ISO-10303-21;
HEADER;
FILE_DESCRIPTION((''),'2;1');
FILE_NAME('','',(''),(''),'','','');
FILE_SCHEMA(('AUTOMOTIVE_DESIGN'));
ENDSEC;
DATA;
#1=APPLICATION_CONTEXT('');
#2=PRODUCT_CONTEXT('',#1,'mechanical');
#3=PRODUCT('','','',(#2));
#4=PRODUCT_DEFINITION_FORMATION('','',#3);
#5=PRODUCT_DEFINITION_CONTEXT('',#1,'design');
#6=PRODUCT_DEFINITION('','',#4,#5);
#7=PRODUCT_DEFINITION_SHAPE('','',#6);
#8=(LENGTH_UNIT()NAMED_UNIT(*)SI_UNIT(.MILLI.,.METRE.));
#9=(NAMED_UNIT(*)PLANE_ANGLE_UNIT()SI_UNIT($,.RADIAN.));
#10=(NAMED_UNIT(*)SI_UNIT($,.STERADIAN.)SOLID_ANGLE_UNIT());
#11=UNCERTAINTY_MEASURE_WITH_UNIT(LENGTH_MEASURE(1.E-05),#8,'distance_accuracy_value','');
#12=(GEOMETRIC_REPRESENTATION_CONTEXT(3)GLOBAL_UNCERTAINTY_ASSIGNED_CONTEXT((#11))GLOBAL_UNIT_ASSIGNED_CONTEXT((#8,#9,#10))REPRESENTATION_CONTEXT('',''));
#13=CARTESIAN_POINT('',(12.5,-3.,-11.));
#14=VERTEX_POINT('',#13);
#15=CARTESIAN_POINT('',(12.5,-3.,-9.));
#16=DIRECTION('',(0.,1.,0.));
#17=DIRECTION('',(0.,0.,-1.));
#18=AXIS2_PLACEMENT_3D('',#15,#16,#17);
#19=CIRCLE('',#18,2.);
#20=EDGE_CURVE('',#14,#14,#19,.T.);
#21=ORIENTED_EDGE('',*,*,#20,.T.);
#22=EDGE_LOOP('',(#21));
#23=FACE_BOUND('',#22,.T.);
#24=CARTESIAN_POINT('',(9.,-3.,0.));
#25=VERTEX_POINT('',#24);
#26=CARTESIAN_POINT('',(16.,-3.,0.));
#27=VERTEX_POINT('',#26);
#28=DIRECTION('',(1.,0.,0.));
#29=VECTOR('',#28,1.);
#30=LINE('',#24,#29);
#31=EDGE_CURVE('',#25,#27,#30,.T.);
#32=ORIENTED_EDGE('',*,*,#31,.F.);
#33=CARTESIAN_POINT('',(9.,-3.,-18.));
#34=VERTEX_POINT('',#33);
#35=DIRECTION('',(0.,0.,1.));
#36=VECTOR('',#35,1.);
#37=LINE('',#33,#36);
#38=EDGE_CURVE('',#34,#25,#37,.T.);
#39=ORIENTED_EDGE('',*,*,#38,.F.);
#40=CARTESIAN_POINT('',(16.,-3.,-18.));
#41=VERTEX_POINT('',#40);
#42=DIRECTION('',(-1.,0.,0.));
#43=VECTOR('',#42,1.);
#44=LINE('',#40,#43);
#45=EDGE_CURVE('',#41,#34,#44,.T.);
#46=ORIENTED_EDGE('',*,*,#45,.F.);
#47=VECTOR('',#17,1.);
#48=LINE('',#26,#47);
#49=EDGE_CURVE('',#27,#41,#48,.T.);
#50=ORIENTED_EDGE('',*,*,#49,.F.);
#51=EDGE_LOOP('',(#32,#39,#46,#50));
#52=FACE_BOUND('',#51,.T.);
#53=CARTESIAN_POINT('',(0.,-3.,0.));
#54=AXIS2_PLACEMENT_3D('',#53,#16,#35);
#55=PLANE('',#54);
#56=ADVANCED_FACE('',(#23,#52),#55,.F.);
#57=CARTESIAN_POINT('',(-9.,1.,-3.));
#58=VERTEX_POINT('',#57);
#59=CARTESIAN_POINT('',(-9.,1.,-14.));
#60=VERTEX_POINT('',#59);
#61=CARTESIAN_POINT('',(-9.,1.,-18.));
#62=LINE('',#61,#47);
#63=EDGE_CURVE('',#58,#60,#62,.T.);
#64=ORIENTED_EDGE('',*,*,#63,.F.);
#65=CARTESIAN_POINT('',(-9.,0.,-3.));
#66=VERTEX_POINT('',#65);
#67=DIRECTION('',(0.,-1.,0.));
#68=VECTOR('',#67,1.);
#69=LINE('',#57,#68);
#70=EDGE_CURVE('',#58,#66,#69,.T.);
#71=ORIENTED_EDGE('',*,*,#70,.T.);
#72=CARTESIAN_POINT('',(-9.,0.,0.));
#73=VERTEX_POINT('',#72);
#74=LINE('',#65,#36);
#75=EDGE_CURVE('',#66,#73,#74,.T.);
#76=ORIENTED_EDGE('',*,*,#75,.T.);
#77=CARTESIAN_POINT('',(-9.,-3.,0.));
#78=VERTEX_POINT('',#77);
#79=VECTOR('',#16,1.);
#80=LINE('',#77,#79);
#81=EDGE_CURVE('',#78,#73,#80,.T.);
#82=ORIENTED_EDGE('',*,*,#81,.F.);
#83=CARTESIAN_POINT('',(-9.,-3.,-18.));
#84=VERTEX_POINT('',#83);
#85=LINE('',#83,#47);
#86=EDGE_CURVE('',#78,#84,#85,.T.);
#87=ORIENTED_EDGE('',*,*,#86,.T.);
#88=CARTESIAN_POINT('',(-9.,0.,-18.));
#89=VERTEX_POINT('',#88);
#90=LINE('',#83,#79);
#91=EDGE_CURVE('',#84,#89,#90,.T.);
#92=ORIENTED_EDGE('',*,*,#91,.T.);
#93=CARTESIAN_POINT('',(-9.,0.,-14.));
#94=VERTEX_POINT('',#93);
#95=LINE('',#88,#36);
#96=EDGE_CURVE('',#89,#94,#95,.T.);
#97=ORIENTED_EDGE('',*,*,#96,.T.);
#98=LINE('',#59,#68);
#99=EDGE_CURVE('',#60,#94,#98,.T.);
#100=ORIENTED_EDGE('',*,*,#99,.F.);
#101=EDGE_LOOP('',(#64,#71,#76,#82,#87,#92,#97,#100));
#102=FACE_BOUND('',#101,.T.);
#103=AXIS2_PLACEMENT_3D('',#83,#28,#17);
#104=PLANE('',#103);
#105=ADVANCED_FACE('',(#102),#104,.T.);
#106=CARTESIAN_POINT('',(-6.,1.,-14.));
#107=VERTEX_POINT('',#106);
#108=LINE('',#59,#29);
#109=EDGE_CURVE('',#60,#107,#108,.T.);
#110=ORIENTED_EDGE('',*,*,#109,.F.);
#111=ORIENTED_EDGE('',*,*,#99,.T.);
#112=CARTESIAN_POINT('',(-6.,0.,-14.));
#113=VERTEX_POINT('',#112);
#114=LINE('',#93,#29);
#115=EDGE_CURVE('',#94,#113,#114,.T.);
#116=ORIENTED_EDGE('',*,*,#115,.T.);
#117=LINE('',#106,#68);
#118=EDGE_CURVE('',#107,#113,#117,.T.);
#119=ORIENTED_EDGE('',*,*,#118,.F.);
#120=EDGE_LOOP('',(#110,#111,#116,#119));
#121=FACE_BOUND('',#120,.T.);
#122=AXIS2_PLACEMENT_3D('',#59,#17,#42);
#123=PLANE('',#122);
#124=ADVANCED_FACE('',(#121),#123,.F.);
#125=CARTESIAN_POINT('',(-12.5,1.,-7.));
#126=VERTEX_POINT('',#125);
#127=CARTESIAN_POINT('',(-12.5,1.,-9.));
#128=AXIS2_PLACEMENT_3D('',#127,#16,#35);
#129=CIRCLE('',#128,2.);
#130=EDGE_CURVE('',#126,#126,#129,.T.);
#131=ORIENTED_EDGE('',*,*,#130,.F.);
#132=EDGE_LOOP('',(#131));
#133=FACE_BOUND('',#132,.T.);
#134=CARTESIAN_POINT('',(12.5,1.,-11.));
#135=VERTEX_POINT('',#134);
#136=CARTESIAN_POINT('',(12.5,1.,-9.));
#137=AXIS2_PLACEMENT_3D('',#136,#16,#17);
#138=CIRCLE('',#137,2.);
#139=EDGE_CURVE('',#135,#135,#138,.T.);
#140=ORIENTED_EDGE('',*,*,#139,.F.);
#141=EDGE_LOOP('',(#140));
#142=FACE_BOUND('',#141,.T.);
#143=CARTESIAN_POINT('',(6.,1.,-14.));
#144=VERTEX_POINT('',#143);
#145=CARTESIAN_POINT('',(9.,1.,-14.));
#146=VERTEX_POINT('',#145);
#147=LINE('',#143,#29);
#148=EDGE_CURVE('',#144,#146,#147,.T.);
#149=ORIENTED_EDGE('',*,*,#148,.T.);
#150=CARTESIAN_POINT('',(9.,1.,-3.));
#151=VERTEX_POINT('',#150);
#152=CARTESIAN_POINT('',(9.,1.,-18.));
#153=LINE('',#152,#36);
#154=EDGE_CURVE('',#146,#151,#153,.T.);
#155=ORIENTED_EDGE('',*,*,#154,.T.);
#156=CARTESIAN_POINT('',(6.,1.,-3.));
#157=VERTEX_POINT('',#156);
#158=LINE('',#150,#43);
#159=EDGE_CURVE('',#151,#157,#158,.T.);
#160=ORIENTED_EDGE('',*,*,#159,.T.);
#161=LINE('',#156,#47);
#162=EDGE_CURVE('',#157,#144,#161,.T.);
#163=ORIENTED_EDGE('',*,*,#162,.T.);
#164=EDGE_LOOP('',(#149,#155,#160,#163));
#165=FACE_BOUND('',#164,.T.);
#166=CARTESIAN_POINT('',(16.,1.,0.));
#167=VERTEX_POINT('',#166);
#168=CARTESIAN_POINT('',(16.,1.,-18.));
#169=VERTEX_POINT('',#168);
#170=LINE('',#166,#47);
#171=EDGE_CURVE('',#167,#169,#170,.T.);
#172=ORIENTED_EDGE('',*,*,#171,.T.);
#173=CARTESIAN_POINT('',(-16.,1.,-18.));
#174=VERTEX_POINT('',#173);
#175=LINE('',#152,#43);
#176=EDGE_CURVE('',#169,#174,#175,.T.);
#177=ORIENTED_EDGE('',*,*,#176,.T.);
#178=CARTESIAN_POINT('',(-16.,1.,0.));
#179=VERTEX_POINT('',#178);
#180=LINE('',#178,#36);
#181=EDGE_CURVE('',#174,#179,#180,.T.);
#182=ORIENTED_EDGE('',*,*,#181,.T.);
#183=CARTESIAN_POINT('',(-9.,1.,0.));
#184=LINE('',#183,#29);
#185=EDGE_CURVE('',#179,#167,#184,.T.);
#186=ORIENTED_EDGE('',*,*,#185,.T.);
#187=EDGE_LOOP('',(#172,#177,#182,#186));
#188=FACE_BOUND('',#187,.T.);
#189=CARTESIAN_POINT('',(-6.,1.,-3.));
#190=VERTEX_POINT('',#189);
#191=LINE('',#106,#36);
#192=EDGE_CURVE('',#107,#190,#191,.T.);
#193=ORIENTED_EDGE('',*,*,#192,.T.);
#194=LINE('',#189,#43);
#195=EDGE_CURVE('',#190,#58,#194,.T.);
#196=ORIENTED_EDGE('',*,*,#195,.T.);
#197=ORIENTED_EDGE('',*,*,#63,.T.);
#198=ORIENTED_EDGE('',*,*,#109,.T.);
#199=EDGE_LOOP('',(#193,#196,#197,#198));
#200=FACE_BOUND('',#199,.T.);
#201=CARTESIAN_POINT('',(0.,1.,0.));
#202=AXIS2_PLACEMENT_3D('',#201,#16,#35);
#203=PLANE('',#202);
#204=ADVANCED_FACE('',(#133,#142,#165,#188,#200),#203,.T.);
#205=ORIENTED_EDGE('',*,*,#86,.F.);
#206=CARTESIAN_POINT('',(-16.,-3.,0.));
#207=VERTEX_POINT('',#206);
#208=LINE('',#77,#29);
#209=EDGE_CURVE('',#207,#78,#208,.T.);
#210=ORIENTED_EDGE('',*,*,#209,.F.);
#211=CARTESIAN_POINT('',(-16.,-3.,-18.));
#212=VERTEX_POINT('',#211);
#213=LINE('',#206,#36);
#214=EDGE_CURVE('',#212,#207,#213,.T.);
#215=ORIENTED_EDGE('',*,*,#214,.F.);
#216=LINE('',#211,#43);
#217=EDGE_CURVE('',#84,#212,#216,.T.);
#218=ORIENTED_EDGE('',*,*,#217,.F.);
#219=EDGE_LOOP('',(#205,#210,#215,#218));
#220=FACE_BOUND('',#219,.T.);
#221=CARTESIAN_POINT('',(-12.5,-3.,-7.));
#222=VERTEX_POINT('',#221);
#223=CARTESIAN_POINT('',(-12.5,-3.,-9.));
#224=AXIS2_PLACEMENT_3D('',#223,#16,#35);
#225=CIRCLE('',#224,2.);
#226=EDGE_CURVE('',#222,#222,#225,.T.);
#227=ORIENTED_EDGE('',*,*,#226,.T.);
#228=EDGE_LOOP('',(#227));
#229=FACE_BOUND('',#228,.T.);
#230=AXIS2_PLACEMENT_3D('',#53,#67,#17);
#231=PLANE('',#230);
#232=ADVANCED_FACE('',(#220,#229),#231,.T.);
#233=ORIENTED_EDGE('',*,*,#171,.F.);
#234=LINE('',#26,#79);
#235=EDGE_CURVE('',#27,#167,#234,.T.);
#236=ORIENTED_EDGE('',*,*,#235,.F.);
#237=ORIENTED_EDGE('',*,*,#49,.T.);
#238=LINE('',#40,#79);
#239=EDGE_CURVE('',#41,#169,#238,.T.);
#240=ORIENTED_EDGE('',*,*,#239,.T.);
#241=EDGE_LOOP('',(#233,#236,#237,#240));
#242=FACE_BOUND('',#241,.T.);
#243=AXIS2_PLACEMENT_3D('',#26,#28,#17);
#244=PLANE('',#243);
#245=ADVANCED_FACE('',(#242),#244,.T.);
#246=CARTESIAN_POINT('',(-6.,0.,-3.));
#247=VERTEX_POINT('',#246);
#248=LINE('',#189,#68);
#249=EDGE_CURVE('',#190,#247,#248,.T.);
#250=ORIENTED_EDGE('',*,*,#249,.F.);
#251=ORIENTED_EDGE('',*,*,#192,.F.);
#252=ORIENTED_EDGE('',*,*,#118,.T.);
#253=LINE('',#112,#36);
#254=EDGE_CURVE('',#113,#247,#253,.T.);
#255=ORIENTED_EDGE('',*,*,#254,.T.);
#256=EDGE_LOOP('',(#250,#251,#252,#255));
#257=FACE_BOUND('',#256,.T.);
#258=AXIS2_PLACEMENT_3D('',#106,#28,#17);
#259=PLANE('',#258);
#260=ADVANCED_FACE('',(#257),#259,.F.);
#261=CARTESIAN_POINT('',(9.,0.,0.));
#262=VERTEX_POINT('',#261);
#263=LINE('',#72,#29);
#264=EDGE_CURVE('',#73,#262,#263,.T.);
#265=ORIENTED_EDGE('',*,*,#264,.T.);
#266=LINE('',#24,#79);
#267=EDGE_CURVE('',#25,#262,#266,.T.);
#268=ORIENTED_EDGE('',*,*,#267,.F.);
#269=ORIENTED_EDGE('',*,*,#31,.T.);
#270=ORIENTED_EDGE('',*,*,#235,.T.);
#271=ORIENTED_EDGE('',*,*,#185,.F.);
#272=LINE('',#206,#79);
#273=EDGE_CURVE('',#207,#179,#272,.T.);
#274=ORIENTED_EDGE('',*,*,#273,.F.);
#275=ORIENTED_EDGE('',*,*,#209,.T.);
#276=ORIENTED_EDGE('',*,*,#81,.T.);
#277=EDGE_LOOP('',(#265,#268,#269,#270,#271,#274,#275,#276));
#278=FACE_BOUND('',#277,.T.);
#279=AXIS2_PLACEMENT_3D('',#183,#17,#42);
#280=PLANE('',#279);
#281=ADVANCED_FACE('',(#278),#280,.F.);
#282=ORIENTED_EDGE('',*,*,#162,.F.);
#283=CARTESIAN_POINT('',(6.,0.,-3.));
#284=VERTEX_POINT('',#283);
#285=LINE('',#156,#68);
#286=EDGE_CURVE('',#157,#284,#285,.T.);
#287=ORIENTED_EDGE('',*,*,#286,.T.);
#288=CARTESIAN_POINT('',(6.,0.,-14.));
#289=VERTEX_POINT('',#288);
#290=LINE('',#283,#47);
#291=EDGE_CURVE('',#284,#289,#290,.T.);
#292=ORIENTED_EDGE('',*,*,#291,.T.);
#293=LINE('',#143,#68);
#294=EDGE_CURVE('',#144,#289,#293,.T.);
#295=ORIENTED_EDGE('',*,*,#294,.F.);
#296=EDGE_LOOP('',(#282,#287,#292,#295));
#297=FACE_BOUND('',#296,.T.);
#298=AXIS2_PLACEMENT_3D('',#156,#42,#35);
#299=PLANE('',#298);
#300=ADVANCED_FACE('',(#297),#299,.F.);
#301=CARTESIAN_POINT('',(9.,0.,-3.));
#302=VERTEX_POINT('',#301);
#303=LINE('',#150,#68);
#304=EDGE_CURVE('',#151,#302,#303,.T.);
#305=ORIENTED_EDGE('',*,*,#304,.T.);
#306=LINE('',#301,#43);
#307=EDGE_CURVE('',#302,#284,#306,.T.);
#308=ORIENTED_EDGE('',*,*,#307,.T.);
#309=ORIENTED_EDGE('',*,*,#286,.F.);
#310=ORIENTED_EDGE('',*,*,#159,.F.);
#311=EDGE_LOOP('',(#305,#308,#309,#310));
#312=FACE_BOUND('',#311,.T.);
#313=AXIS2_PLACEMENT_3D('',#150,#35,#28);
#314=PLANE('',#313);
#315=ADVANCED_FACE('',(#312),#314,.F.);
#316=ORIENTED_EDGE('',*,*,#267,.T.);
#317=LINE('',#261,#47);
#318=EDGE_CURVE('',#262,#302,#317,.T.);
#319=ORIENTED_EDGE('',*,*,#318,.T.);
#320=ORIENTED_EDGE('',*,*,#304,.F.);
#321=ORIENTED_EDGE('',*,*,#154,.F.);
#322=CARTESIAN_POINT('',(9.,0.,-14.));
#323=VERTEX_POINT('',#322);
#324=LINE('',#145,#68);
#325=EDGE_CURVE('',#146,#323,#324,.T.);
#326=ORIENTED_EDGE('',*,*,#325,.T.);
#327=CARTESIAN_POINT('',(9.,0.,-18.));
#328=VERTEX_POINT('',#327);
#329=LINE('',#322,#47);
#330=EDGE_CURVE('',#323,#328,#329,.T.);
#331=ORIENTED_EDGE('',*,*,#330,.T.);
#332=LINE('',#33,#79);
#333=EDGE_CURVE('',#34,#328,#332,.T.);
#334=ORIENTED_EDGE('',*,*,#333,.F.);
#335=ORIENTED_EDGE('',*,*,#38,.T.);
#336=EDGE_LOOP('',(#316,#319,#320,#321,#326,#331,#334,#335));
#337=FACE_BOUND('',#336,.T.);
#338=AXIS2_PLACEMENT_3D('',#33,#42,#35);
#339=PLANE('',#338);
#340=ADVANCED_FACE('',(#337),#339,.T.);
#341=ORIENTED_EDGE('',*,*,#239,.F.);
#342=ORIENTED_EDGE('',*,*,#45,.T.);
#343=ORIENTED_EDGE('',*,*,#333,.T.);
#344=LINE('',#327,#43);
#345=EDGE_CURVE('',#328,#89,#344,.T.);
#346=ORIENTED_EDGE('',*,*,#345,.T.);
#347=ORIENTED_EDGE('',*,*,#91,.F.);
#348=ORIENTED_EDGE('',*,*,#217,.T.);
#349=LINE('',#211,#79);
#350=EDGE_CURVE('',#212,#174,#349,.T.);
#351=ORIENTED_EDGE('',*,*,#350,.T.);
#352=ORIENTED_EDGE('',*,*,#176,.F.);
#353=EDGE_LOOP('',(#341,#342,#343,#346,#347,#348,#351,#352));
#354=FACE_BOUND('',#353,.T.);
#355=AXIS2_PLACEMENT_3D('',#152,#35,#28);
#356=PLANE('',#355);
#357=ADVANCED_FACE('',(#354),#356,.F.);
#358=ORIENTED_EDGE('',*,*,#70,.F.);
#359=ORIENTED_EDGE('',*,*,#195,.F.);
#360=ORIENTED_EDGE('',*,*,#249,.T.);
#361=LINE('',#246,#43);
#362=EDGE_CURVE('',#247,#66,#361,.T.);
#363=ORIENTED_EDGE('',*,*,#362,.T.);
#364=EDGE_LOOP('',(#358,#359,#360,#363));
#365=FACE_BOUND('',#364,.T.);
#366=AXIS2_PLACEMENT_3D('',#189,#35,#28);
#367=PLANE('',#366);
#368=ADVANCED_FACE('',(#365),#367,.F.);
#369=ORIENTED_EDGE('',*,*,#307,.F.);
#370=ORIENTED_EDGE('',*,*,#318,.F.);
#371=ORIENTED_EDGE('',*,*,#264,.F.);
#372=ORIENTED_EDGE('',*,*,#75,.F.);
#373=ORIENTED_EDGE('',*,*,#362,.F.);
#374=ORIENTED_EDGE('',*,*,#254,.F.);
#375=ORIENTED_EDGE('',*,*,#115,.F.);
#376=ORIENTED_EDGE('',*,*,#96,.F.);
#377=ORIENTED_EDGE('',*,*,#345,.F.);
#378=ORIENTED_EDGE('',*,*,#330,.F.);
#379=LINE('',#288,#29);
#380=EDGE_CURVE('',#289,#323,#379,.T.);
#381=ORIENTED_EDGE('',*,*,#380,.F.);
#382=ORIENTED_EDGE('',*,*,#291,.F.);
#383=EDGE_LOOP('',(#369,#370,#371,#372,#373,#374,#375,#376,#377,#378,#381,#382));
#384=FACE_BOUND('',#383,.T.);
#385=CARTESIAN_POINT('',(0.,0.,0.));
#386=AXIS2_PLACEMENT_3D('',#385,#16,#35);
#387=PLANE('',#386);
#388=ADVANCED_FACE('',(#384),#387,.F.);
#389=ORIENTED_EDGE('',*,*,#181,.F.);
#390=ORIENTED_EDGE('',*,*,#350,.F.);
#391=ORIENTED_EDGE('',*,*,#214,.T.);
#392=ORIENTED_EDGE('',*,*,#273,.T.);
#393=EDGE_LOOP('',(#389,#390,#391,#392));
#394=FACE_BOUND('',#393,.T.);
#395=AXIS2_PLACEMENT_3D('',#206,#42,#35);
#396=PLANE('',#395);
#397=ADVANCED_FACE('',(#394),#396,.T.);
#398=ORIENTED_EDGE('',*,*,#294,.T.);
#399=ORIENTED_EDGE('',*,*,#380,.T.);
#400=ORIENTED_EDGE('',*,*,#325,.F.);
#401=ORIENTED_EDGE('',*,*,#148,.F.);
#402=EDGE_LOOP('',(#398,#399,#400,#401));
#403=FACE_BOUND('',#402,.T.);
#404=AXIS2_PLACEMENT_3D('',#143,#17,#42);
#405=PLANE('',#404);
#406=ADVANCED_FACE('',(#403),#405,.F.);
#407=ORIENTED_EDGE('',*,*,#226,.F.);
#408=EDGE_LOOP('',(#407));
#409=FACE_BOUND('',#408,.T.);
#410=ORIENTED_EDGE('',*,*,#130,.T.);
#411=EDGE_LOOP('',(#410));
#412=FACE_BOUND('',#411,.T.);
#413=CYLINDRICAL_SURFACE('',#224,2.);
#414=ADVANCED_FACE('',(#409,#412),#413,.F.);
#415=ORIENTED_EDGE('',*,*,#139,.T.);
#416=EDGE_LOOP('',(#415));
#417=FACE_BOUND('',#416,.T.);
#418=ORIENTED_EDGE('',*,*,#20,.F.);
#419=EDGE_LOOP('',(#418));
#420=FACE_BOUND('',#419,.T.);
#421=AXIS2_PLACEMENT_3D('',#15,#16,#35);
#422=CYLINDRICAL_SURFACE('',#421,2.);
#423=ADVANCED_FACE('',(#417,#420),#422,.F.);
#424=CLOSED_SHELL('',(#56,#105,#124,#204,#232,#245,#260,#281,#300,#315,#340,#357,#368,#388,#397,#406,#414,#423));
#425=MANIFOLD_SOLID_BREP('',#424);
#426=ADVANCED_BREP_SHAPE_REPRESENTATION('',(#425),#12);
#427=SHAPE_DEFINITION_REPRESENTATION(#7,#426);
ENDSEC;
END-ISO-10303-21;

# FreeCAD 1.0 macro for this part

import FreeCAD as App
import Part
import Sketcher
Q = App.Units.Quantity


def add_polygon(sketch, points):
    """Adds a closed chain of lines whose ends are joined by coincident constraints."""
    first, n = sketch.GeometryCount, len(points)
    for a, b in zip(points, points[1:] + points[:1]):
        sketch.addGeometry(Part.LineSegment(App.Vector(*a, 0), App.Vector(*b, 0)), False)
    for i in range(n):
        sketch.addConstraint(Sketcher.Constraint("Coincident", first + i, 2, first + (i + 1) % n, 1))

doc = App.newDocument("Part")
body = doc.addObject("PartDesign::Body", "Body")

# Sketch on XZ plane
sketch1 = body.newObject("Sketcher::SketchObject", "Sketch")
sketch1.AttachmentSupport = (doc.getObject("XZ_Plane"), [""])
sketch1.MapMode = "FlatFace"
add_polygon(sketch1, [(-9, 0), (9, 0), (9, -3), (6, -3), (6, -14), (9, -14), (9, -18), (-9, -18), (-9, -14), (-6, -14), (-6, -3), (-9, -3)])  # lines 0-11
sketch1.addConstraint([
    Sketcher.Constraint("Horizontal", 0),
    Sketcher.Constraint("Vertical", 1),
    Sketcher.Constraint("Horizontal", 2),
    Sketcher.Constraint("Vertical", 3),
    Sketcher.Constraint("Horizontal", 4),
    Sketcher.Constraint("Vertical", 5),
    Sketcher.Constraint("Horizontal", 6),
    Sketcher.Constraint("Vertical", 7),
    Sketcher.Constraint("Horizontal", 8),
    Sketcher.Constraint("Vertical", 9),
    Sketcher.Constraint("Horizontal", 10),
    Sketcher.Constraint("Vertical", 11),
    Sketcher.Constraint("Symmetric", 0, 2, 11, 2, -1, 1),
    Sketcher.Constraint("Symmetric", 4, 2, 7, 2, -2),
    Sketcher.Constraint("Symmetric", 2, 2, 9, 2, -2),
    Sketcher.Constraint("Vertical", 1, 2, 4, 2),
    Sketcher.Constraint("Equal", 10, 1),
    Sketcher.Constraint("DistanceX", 0, 1, 0, 2, Q("18 mm")),
    Sketcher.Constraint("DistanceX", 2, 2, 2, 1, Q("3 mm")),
    Sketcher.Constraint("DistanceY", 3, 2, 3, 1, Q("11 mm")),
    Sketcher.Constraint("DistanceY", 5, 2, 5, 1, Q("4 mm")),
])
pad1 = body.newObject("PartDesign::Pad", "Pad")
pad1.Profile = sketch1
pad1.Length = 1
pad1.Reversed = True

# Sketch on XZ plane
sketch2 = body.newObject("Sketcher::SketchObject", "Sketch001")
sketch2.AttachmentSupport = (doc.getObject("XZ_Plane"), [""])
sketch2.MapMode = "FlatFace"
sketch2.AttachmentOffset = App.Placement(App.Vector(0, 0, -1), App.Rotation())
add_polygon(sketch2, [(-16, -18), (-16, 0), (-9, 0), (-9, -18)])  # lines 0-3
sketch2.addGeometry(Part.Circle(App.Vector(-12.5, -9, 0), App.Vector(0, 0, 1), 2), False)  # 4
add_polygon(sketch2, [(9, -18), (9, 0), (16, 0), (16, -18)])  # lines 5-8
sketch2.addGeometry(Part.Circle(App.Vector(12.5, -9, 0), App.Vector(0, 0, 1), 2), False)  # 9
sketch2.addConstraint([
    Sketcher.Constraint("Vertical", 0),
    Sketcher.Constraint("Horizontal", 1),
    Sketcher.Constraint("Vertical", 2),
    Sketcher.Constraint("Horizontal", 3),
    Sketcher.Constraint("Vertical", 5),
    Sketcher.Constraint("Horizontal", 6),
    Sketcher.Constraint("Vertical", 7),
    Sketcher.Constraint("Horizontal", 8),
    Sketcher.Constraint("Equal", 4, 9),
    Sketcher.Constraint("Symmetric", 1, 2, 5, 2, -1, 1),
    Sketcher.Constraint("Symmetric", 4, 3, 9, 3, -2),
    Sketcher.Constraint("Symmetric", 0, 2, 6, 2, -2),
    Sketcher.Constraint("Horizontal", 3, 2, 7, 2),
    Sketcher.Constraint("Diameter", 4, Q("4 mm")),
    Sketcher.Constraint("DistanceX", 1, 1, 1, 2, Q("7 mm")),
    Sketcher.Constraint("DistanceY", 0, 1, 0, 2, Q("18 mm")),
    Sketcher.Constraint("DistanceY", 4, 3, -1, 1, Q("9 mm")),
    Sketcher.Constraint("DistanceX", 0, 2, -1, 1, Q("16 mm")),
    Sketcher.Constraint("DistanceX", 4, 3, 9, 3, Q("25 mm")),
])
pad2 = body.newObject("PartDesign::Pad", "Pad001")
pad2.Profile = sketch2
pad2.Length = 4

doc.recompute()
